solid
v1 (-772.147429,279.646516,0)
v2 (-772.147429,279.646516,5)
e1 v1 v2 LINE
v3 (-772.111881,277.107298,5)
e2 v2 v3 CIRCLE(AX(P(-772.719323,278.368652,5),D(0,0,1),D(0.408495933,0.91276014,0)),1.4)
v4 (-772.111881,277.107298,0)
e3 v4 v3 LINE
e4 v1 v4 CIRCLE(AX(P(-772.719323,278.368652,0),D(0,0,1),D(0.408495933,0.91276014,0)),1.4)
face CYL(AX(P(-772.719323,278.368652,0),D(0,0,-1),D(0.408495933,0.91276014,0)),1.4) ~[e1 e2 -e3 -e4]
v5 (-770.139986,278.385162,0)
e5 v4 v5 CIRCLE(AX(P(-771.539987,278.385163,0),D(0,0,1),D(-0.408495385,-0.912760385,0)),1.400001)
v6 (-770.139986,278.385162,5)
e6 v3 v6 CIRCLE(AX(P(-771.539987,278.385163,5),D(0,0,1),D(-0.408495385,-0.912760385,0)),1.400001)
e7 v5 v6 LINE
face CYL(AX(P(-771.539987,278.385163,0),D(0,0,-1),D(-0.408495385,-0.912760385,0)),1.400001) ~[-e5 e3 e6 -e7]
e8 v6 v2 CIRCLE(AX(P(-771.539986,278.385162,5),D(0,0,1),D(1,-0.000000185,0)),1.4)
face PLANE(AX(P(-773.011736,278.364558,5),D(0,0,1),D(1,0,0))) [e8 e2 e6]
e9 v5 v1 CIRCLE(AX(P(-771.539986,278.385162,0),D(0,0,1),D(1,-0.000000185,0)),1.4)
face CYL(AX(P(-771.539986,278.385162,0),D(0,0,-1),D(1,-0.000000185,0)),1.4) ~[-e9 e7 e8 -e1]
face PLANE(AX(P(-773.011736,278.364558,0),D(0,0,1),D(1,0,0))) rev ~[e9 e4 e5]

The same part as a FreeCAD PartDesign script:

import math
import FreeCAD as App
import Part
import Sketcher
from FreeCAD import Vector
Q = App.Units.Quantity

doc = App.newDocument("Part")
params = doc.addObject("Spreadsheet::Sheet", "Params")
for row, (alias, value) in enumerate([
    ("sketch1_radius", "1.4 mm"),
    ("pad1_length", "5 mm"),
], start=1):
    params.set(f"A{row}", alias)
    params.set(f"B{row}", "=" + value)
    params.setAlias(f"B{row}", alias)

body = doc.addObject("PartDesign::Body", "Body")

# Sketch on XY plane
sketch1 = body.newObject("Sketcher::SketchObject", "Sketch")
sketch1.AttachmentSupport = (doc.getObject("XY_Plane"), [""])
sketch1.MapMode = "FlatFace"
sketch1.addGeometry([
    Part.ArcOfCircle(Part.Circle(Vector(-772.7, 278.4, 0), Vector(0, 0, 1), 1.4), math.radians(66), math.radians(296)),
    Part.ArcOfCircle(Part.Circle(Vector(-771.5, 278.4, 0), Vector(0, 0, 1), 1.4), math.radians(-114), math.radians(0)),
    Part.ArcOfCircle(Part.Circle(Vector(-771.5, 278.4, 0), Vector(0, 0, 1), 1.4), math.radians(0), math.radians(116)),
], False)
sketch1.addConstraint([
    Sketcher.Constraint("Coincident", 0, 2, 1, 1),
    Sketcher.Constraint("Tangent", 1, 2, 2, 1),
    Sketcher.Constraint("Coincident", 2, 2, 0, 1),
    Sketcher.Constraint("Equal", 0, 1),
    Sketcher.Constraint("Equal", 1, 2),
    Sketcher.Constraint("Horizontal", 2, 3, 1, 2),
    Sketcher.Constraint("Radius", 0, Q("1.4 mm")),
    Sketcher.Constraint("DistanceY", -1, 1, 0, 2, Q("277.107298 mm")),
    Sketcher.Constraint("DistanceY", -1, 1, 0, 3, Q("278.368652 mm")),
    Sketcher.Constraint("DistanceX", 0, 2, -1, 1, Q("772.111881 mm")),
    Sketcher.Constraint("DistanceY", -1, 1, 1, 2, Q("278.385162 mm")),
])
sketch1.setExpression("Constraints[6]", "Params.sketch1_radius")
pad1 = body.newObject("PartDesign::Pad", "Pad")
pad1.Profile = sketch1
pad1.setExpression("Length", "Params.pad1_length")

doc.recompute()
